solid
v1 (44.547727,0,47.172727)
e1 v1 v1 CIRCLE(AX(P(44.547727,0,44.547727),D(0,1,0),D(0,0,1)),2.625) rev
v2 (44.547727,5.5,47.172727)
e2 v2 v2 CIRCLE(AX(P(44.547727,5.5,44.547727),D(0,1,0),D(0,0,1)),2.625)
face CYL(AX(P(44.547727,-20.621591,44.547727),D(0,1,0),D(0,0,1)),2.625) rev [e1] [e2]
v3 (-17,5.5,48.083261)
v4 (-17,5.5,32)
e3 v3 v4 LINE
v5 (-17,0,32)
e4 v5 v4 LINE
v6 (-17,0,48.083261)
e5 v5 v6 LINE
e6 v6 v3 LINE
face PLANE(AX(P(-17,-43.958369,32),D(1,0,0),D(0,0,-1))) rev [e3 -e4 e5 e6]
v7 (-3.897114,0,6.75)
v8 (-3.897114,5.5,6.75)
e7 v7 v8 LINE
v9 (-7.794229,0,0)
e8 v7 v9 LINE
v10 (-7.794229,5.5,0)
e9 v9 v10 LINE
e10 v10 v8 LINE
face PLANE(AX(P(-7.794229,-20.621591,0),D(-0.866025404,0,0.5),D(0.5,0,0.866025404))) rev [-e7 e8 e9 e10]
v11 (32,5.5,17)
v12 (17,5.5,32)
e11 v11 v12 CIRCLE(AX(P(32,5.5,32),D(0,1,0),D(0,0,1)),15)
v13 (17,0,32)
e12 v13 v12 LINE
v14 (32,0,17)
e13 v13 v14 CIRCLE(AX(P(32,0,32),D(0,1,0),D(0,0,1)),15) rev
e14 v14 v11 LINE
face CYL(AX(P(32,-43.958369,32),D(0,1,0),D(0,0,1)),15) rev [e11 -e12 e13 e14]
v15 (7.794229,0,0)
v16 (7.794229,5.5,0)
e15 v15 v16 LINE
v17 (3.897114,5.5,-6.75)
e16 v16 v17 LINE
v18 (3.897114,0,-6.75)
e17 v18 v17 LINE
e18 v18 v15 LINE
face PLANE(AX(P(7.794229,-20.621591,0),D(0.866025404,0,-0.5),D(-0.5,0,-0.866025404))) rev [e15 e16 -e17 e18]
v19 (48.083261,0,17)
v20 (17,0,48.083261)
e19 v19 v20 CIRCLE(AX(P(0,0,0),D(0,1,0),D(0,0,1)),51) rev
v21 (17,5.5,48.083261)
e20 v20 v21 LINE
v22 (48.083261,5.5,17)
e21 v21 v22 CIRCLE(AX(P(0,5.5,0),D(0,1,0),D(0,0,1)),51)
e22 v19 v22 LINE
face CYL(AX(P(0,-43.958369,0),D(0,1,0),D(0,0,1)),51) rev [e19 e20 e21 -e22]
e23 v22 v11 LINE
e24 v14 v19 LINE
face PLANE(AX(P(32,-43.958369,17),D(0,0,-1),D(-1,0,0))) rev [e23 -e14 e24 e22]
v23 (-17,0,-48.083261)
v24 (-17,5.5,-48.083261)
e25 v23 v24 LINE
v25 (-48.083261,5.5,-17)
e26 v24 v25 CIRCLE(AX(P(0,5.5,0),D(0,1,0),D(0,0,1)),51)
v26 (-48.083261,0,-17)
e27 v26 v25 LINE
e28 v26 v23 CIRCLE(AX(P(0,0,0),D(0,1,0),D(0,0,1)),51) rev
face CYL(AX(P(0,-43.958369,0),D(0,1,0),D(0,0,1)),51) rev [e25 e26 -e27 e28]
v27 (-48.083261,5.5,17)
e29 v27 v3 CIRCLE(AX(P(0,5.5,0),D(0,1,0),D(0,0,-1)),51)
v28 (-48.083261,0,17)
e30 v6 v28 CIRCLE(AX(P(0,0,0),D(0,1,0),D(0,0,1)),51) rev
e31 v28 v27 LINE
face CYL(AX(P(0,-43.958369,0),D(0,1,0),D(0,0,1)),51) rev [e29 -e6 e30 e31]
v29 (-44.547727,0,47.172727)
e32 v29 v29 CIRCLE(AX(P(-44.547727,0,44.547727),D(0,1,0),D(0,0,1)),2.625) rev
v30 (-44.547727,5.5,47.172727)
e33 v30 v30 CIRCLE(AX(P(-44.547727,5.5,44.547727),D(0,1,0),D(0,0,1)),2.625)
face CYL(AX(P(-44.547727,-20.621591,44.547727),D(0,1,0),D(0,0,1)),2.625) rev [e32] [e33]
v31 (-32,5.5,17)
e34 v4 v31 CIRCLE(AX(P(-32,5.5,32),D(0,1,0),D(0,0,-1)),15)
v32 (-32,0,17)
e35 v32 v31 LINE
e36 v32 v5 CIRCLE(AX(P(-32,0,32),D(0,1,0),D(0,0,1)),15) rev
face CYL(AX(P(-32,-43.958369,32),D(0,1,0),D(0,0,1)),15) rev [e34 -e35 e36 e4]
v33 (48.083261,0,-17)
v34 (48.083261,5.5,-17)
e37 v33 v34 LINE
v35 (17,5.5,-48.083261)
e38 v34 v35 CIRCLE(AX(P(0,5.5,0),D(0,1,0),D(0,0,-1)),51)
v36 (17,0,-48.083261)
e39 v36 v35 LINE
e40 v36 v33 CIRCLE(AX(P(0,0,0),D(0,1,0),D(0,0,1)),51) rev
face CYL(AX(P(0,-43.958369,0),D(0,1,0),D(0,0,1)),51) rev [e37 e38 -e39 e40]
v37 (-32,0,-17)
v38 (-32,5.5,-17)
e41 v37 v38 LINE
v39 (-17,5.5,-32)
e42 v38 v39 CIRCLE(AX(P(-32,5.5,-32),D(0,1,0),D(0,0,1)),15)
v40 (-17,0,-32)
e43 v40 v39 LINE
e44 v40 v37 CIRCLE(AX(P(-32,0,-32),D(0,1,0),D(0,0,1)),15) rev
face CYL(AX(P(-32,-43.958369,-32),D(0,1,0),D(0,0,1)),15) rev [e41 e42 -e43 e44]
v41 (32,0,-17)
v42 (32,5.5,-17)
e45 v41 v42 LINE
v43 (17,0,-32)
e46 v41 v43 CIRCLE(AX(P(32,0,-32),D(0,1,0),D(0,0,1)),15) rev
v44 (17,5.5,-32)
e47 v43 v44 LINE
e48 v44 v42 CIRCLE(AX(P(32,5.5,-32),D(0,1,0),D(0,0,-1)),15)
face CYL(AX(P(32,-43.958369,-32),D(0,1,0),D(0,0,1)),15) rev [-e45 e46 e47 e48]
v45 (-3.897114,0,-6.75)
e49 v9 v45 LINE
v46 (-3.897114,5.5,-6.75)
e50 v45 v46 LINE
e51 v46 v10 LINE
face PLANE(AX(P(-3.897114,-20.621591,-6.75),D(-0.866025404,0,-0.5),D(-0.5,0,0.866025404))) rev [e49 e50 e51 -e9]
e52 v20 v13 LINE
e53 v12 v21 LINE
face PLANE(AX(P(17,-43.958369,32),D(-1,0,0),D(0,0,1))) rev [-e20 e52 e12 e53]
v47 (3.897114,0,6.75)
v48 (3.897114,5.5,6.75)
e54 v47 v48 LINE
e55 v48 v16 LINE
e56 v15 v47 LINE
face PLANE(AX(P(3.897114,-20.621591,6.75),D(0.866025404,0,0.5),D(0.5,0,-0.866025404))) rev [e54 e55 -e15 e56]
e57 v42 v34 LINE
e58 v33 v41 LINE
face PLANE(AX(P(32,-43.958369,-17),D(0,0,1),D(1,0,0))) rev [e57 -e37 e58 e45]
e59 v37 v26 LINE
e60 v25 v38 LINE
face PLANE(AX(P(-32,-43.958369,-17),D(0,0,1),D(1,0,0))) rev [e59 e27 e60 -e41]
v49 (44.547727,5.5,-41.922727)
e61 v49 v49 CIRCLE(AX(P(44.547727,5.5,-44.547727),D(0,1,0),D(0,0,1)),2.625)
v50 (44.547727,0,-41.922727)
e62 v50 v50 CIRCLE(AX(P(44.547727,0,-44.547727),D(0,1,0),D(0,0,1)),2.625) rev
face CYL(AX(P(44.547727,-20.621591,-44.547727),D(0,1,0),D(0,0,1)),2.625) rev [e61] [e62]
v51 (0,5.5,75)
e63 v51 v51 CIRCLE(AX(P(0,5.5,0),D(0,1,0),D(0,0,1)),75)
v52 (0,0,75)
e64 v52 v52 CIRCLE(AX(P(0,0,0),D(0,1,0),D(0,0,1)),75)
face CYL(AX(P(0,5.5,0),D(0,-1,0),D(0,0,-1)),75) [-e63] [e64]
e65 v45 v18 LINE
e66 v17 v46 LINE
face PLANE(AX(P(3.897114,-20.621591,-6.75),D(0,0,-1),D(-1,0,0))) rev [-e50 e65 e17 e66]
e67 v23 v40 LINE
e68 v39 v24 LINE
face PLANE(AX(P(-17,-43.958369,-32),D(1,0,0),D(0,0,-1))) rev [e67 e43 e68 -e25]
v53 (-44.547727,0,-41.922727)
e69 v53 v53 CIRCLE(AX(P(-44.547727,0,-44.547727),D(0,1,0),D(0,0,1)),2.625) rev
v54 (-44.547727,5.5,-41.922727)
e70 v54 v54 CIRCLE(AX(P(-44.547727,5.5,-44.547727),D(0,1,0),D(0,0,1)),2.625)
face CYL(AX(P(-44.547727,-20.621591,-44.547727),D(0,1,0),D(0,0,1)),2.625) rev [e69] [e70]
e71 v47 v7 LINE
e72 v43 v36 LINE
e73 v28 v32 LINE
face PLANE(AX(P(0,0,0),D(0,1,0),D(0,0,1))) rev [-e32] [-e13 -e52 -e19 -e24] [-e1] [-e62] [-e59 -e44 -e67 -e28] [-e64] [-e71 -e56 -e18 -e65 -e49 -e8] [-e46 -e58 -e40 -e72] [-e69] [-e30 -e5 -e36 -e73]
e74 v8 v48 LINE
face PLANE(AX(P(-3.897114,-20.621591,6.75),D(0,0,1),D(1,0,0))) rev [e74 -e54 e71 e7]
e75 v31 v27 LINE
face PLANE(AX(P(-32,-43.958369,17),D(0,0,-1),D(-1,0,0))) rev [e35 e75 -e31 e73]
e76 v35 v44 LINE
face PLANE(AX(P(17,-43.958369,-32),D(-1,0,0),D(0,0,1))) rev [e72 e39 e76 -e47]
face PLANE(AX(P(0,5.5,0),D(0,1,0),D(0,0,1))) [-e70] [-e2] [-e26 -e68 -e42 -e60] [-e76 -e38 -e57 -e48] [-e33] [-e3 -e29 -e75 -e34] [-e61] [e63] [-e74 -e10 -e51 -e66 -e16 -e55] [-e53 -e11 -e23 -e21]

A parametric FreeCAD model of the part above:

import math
import FreeCAD as App
import Part
import Sketcher
from FreeCAD import Vector
Q = App.Units.Quantity


def add_polygon(sketch, points):
    """Adds a closed chain of lines whose ends are joined by coincident constraints."""
    first, n = sketch.GeometryCount, len(points)
    for a, b in zip(points, points[1:] + points[:1]):
        sketch.addGeometry(Part.LineSegment(App.Vector(*a, 0), App.Vector(*b, 0)), False)
    for i in range(n):
        sketch.addConstraint(Sketcher.Constraint("Coincident", first + i, 2, first + (i + 1) % n, 1))

doc = App.newDocument("Part")
body = doc.addObject("PartDesign::Body", "Body")

sketch1 = body.newObject("Sketcher::SketchObject", "Sketch")
sketch1.AttachmentSupport = (doc.getObject("XZ_Plane"), [""])
sketch1.MapMode = "FlatFace"
sketch1.addGeometry(Part.Circle(Vector(0, 0, 0), Vector(0, 0, 1), 75), False)
sketch1.addGeometry(Part.Circle(Vector(0, 0, 0), Vector(0, 0, 1), 4.2), False)
sketch1.addConstraint(Sketcher.Constraint("Coincident", 0, 3, -1, 1))
sketch1.addConstraint(Sketcher.Constraint("Coincident", 1, 3, -1, 1))
sketch1.addConstraint(Sketcher.Constraint("Diameter", 0, Q("150 mm")))
sketch1.addConstraint(Sketcher.Constraint("Diameter", 1, Q("8.5 mm")))
pad1 = body.newObject("PartDesign::Pad", "Pad")
pad1.Profile = sketch1
pad1.Length = 5.5
pad1.Reversed = True

sketch2 = body.newObject("Sketcher::SketchObject", "Sketch001")
sketch2.AttachmentSupport = (doc.getObject("XZ_Plane"), [""])
sketch2.MapMode = "FlatFace"
sketch2.AttachmentOffset = App.Placement(Vector(0, 0, -5.5), App.Rotation())
sketch2.addGeometry(Part.Circle(Vector(44.5, 44.5, 0), Vector(0, 0, 1), 2.6), False)
sketch2.addGeometry(Part.Circle(Vector(-44.5, 44.5, 0), Vector(0, 0, 1), 2.6), False)
sketch2.addGeometry(Part.Circle(Vector(44.5, -44.5, 0), Vector(0, 0, 1), 2.6), False)
sketch2.addGeometry(Part.Circle(Vector(-44.5, -44.5, 0), Vector(0, 0, 1), 2.6), False)
add_polygon(sketch2, [(7.8, 0), (3.9, -6.8), (-3.9, -6.8), (-7.8, 0), (-3.9, 6.8), (3.9, 6.8)])
sketch2.addConstraint(Sketcher.Constraint("Horizontal", 5))
sketch2.addConstraint(Sketcher.Constraint("Horizontal", 8))
sketch2.addConstraint(Sketcher.Constraint("Equal", 0, 1))
sketch2.addConstraint(Sketcher.Constraint("Equal", 1, 2))
sketch2.addConstraint(Sketcher.Constraint("Equal", 2, 3))
sketch2.addConstraint(Sketcher.Constraint("Symmetric", 1, 3, 2, 3, -1, 1))
sketch2.addConstraint(Sketcher.Constraint("Symmetric", 0, 3, 3, 3, -1, 1))
sketch2.addConstraint(Sketcher.Constraint("Symmetric", 4, 2, 7, 2, -1, 1))
sketch2.addConstraint(Sketcher.Constraint("Symmetric", 6, 2, 9, 2, -1, 1))
sketch2.addConstraint(Sketcher.Constraint("Symmetric", 0, 3, 1, 3, -2))
sketch2.addConstraint(Sketcher.Constraint("PointOnObject", 6, 2, -1))
sketch2.addConstraint(Sketcher.Constraint("Parallel", 6, 9))
sketch2.addConstraint(Sketcher.Constraint("Vertical", 5, 2, 7, 2))
sketch2.addConstraint(Sketcher.Constraint("Diameter", 0, Q("5.25 mm")))
sketch2.addConstraint(Sketcher.Constraint("Angle", 4, Q("-120 deg")))
sketch2.addConstraint(Sketcher.Constraint("DistanceY", 5, 2, 7, 2, Q("13.5 mm")))
sketch2.addConstraint(Sketcher.Constraint("DistanceX", 5, 2, 5, 1, Q("7.794229 mm")))
sketch2.addConstraint(Sketcher.Constraint("DistanceX", 1, 3, 6, 2, Q("36.753499 mm")))
sketch2.addConstraint(Sketcher.Constraint("DistanceY", -1, 1, 0, 3, Q("44.547727 mm")))
pocket1 = body.newObject("PartDesign::Pocket", "Pocket")
pocket1.Profile = sketch2
pocket1.Length = 5.5
pocket1.Reversed = True

sketch3 = body.newObject("Sketcher::SketchObject", "Sketch002")
sketch3.AttachmentSupport = (doc.getObject("XZ_Plane"), [""])
sketch3.MapMode = "FlatFace"
sketch3.AttachmentOffset = App.Placement(Vector(0, 0, -5.5), App.Rotation())
sketch3.addGeometry(Part.LineSegment(Vector(48, 17, 0), Vector(32, 17, 0)), False)
sketch3.addGeometry(Part.ArcOfCircle(Part.Circle(Vector(32, 32, 0), Vector(0, 0, 1), 15), math.radians(180), math.radians(270)), False)
sketch3.addGeometry(Part.LineSegment(Vector(17, 32, 0), Vector(17, 48, 0)), False)
sketch3.addGeometry(Part.ArcOfCircle(Part.Circle(Vector(0, 0, 0), Vector(0, 0, 1), 51), math.radians(19), math.radians(71)), False)
sketch3.addGeometry(Part.LineSegment(Vector(-17, 48, 0), Vector(-17, 32, 0)), False)
sketch3.addGeometry(Part.ArcOfCircle(Part.Circle(Vector(-32, 32, 0), Vector(0, 0, 1), 15), math.radians(-90), math.radians(0)), False)
sketch3.addGeometry(Part.LineSegment(Vector(-32, 17, 0), Vector(-48, 17, 0)), False)
sketch3.addGeometry(Part.ArcOfCircle(Part.Circle(Vector(0, 0, 0), Vector(0, 0, 1), 51), math.radians(109), math.radians(161)), False)
sketch3.addGeometry(Part.LineSegment(Vector(17, -48, 0), Vector(17, -32, 0)), False)
sketch3.addGeometry(Part.ArcOfCircle(Part.Circle(Vector(32, -32, 0), Vector(0, 0, 1), 15), math.radians(90), math.radians(180)), False)
sketch3.addGeometry(Part.LineSegment(Vector(32, -17, 0), Vector(48, -17, 0)), False)
sketch3.addGeometry(Part.ArcOfCircle(Part.Circle(Vector(0, 0, 0), Vector(0, 0, 1), 51), math.radians(-71), math.radians(-19)), False)
sketch3.addGeometry(Part.LineSegment(Vector(-48, -17, 0), Vector(-32, -17, 0)), False)
sketch3.addGeometry(Part.ArcOfCircle(Part.Circle(Vector(-32, -32, 0), Vector(0, 0, 1), 15), math.radians(0), math.radians(90)), False)
sketch3.addGeometry(Part.LineSegment(Vector(-17, -32, 0), Vector(-17, -48, 0)), False)
sketch3.addGeometry(Part.ArcOfCircle(Part.Circle(Vector(0, 0, 0), Vector(0, 0, 1), 51), math.radians(-161), math.radians(-109)), False)
sketch3.addConstraint(Sketcher.Constraint("Tangent", 0, 2, 1, 2))
sketch3.addConstraint(Sketcher.Constraint("Tangent", 1, 1, 2, 1))
sketch3.addConstraint(Sketcher.Constraint("Coincident", 2, 2, 3, 2))
sketch3.addConstraint(Sketcher.Constraint("Coincident", 3, 1, 0, 1))
sketch3.addConstraint(Sketcher.Constraint("Tangent", 4, 2, 5, 2))
sketch3.addConstraint(Sketcher.Constraint("Tangent", 5, 1, 6, 1))
sketch3.addConstraint(Sketcher.Constraint("Coincident", 6, 2, 7, 2))
sketch3.addConstraint(Sketcher.Constraint("Coincident", 7, 1, 4, 1))
sketch3.addConstraint(Sketcher.Constraint("Tangent", 8, 2, 9, 2))
sketch3.addConstraint(Sketcher.Constraint("Tangent", 9, 1, 10, 1))
sketch3.addConstraint(Sketcher.Constraint("Coincident", 10, 2, 11, 2))
sketch3.addConstraint(Sketcher.Constraint("Coincident", 11, 1, 8, 1))
sketch3.addConstraint(Sketcher.Constraint("Tangent", 12, 2, 13, 2))
sketch3.addConstraint(Sketcher.Constraint("Tangent", 13, 1, 14, 1))
sketch3.addConstraint(Sketcher.Constraint("Coincident", 14, 2, 15, 2))
sketch3.addConstraint(Sketcher.Constraint("Coincident", 15, 1, 12, 1))
sketch3.addConstraint(Sketcher.Constraint("Horizontal", 0))
sketch3.addConstraint(Sketcher.Constraint("Vertical", 2))
sketch3.addConstraint(Sketcher.Constraint("Vertical", 4))
sketch3.addConstraint(Sketcher.Constraint("Horizontal", 6))
sketch3.addConstraint(Sketcher.Constraint("Vertical", 8))
sketch3.addConstraint(Sketcher.Constraint("Horizontal", 10))
sketch3.addConstraint(Sketcher.Constraint("Horizontal", 12))
sketch3.addConstraint(Sketcher.Constraint("Vertical", 14))
sketch3.addConstraint(Sketcher.Constraint("Coincident", 3, 3, -1, 1))
sketch3.addConstraint(Sketcher.Constraint("Coincident", 7, 3, -1, 1))
sketch3.addConstraint(Sketcher.Constraint("Coincident", 11, 3, -1, 1))
sketch3.addConstraint(Sketcher.Constraint("Coincident", 15, 3, -1, 1))
sketch3.addConstraint(Sketcher.Constraint("Equal", 1, 5))
sketch3.addConstraint(Sketcher.Constraint("Equal", 3, 7))
sketch3.addConstraint(Sketcher.Constraint("Equal", 5, 9))
sketch3.addConstraint(Sketcher.Constraint("Equal", 7, 11))
sketch3.addConstraint(Sketcher.Constraint("Equal", 9, 13))
sketch3.addConstraint(Sketcher.Constraint("Equal", 11, 15))
sketch3.addConstraint(Sketcher.Constraint("Symmetric", 5, 3, 9, 3, -1, 1))
sketch3.addConstraint(Sketcher.Constraint("Symmetric", 1, 3, 13, 3, -1, 1))
sketch3.addConstraint(Sketcher.Constraint("Symmetric", 1, 3, 5, 3, -2))
sketch3.addConstraint(Sketcher.Constraint("Equal", 12, 2))
sketch3.addConstraint(Sketcher.Constraint("Radius", 1, Q("15 mm")))
sketch3.addConstraint(Sketcher.Constraint("Radius", 3, Q("51 mm")))
sketch3.addConstraint(Sketcher.Constraint("DistanceX", -1, 1, 1, 3, Q("32 mm")))
pocket2 = body.newObject("PartDesign::Pocket", "Pocket001")
pocket2.Profile = sketch3
pocket2.Length = 5.5
pocket2.Reversed = True

doc.recompute()
